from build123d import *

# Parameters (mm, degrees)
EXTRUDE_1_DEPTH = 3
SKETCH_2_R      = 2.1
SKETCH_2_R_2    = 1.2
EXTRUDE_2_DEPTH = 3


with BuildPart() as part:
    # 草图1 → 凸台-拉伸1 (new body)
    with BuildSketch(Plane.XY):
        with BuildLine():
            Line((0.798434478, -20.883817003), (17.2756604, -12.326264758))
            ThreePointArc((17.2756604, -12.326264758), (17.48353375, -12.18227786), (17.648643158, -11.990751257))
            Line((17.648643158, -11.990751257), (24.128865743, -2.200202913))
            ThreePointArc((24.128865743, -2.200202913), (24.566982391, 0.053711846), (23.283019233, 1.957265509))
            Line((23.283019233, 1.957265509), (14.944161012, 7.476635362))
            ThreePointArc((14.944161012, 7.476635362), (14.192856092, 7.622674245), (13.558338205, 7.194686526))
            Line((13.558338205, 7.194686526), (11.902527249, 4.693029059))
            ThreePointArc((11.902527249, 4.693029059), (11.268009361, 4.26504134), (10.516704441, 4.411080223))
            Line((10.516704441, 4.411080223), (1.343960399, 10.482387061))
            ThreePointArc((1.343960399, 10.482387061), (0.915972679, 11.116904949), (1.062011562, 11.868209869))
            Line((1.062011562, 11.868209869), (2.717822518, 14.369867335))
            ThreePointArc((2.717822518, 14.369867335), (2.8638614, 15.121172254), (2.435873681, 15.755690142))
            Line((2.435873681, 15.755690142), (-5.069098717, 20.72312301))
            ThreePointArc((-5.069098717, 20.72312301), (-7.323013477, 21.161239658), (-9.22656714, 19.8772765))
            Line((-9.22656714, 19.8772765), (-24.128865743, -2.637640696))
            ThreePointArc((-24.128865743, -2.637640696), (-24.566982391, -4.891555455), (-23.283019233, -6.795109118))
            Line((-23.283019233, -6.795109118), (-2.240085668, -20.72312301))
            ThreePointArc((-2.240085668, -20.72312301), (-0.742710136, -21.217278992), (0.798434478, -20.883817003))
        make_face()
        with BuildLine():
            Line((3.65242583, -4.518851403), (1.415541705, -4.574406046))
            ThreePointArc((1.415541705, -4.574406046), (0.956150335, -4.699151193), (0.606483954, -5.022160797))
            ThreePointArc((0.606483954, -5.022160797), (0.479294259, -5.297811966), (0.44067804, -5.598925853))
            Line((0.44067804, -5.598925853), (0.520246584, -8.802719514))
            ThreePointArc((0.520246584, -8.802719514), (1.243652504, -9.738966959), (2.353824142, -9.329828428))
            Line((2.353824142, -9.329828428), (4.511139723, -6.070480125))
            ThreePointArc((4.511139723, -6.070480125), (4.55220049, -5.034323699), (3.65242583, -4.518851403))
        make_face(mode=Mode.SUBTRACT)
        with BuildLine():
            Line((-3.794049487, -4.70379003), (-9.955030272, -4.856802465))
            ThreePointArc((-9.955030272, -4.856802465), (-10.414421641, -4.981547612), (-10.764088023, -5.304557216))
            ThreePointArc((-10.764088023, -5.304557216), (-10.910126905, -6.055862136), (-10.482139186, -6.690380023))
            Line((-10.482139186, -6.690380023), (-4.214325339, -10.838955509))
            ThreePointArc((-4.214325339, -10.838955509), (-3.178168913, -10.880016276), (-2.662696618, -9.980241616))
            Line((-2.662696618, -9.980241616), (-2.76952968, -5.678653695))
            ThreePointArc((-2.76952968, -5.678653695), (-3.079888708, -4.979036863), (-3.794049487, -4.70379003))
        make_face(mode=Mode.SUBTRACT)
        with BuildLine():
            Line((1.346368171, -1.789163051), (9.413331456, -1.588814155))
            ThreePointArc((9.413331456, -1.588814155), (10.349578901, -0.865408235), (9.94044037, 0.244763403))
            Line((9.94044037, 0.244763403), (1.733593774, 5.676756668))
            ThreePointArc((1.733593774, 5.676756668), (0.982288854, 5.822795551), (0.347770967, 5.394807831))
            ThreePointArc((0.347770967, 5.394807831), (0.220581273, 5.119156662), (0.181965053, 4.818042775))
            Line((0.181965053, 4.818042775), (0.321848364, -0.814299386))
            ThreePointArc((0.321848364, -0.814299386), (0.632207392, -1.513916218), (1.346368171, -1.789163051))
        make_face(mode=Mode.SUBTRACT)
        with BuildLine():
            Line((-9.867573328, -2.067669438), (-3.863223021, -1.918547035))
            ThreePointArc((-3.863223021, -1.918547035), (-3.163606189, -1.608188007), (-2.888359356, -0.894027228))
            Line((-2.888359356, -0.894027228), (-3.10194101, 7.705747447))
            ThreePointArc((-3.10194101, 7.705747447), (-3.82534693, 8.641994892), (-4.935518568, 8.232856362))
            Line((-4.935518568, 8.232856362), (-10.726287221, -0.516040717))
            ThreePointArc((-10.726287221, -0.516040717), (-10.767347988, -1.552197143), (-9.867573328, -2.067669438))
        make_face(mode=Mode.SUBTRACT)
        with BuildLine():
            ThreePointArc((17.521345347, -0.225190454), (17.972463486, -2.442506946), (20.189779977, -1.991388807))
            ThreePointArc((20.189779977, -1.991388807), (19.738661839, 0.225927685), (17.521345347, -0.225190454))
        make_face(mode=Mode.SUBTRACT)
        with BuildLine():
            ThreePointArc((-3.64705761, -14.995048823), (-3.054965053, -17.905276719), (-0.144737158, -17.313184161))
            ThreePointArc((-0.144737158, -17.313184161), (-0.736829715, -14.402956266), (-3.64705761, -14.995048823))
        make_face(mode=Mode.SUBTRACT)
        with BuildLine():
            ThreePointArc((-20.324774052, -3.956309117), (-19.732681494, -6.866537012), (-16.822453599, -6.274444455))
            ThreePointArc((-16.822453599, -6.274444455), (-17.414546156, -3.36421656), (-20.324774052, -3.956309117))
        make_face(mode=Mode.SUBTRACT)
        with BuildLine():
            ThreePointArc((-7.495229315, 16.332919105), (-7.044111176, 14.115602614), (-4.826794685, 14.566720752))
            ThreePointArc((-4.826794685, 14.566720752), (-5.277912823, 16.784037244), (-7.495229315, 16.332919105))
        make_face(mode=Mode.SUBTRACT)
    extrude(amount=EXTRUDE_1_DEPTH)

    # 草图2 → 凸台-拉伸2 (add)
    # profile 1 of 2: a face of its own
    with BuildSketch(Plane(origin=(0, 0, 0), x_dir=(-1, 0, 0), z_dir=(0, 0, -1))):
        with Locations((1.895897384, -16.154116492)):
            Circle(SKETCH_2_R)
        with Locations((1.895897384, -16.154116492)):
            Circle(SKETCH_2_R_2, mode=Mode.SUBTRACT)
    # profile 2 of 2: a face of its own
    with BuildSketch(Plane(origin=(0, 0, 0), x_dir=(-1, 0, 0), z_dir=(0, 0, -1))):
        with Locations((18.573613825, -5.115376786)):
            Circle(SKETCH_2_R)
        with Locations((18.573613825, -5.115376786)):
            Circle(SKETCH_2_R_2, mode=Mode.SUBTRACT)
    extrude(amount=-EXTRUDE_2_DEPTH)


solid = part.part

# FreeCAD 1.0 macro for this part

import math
import FreeCAD as App
import Part
import Sketcher
from FreeCAD import Vector
Q = App.Units.Quantity

doc = App.newDocument("Part")
body = doc.addObject("PartDesign::Body", "Body")

sketch1 = doc.addObject("Sketcher::SketchObject", "Sketch")
body.addObject(sketch1)
sketch1.AttachmentSupport = (doc.XY_Plane, [""])
sketch1.MapMode = "FlatFace"
sketch1.addGeometry(Part.LineSegment(Vector(0.8, -20.9, 0), Vector(17.3, -12.3, 0)), False)
sketch1.addGeometry(Part.ArcOfCircle(Part.Circle(Vector(16.8, -11.4, 0), Vector(0, 0, 1), 1), math.radians(-63), math.radians(-34)), False)
sketch1.addGeometry(Part.LineSegment(Vector(17.6, -12, 0), Vector(24.1, -2.2, 0)), False)
sketch1.addGeometry(Part.ArcOfCircle(Part.Circle(Vector(21.6, -0.5, 0), Vector(0, 0, 1), 3), math.radians(-34), math.radians(57)), False)
sketch1.addGeometry(Part.LineSegment(Vector(23.3, 2, 0), Vector(14.9, 7.5, 0)), False)
sketch1.addGeometry(Part.ArcOfCircle(Part.Circle(Vector(14.4, 6.6, 0), Vector(0, 0, 1), 1), math.radians(56), math.radians(146)), False)
sketch1.addGeometry(Part.LineSegment(Vector(13.6, 7.2, 0), Vector(11.9, 4.7, 0)), False)
sketch1.addGeometry(Part.ArcOfCircle(Part.Circle(Vector(11.1, 5.2, 0), Vector(0, 0, 1), 1), math.radians(-124), math.radians(-34)), False)
sketch1.addGeometry(Part.LineSegment(Vector(10.5, 4.4, 0), Vector(1.3, 10.5, 0)), False)
sketch1.addGeometry(Part.ArcOfCircle(Part.Circle(Vector(1.9, 11.3, 0), Vector(0, 0, 1), 1), math.radians(146), math.radians(237)), False)
sketch1.addGeometry(Part.LineSegment(Vector(1.1, 11.9, 0), Vector(2.7, 14.4, 0)), False)
sketch1.addGeometry(Part.ArcOfCircle(Part.Circle(Vector(1.9, 14.9, 0), Vector(0, 0, 1), 1), math.radians(-33), math.radians(56)), False)
sketch1.addGeometry(Part.LineSegment(Vector(2.4, 15.8, 0), Vector(-5.1, 20.7, 0)), False)
sketch1.addGeometry(Part.ArcOfCircle(Part.Circle(Vector(-6.7, 18.2, 0), Vector(0, 0, 1), 3), math.radians(56), math.radians(146)), False)
sketch1.addGeometry(Part.LineSegment(Vector(-9.2, 19.9, 0), Vector(-24.1, -2.6, 0)), False)
sketch1.addGeometry(Part.ArcOfCircle(Part.Circle(Vector(-21.6, -4.3, 0), Vector(0, 0, 1), 3), math.radians(146), math.radians(237)), False)
sketch1.addGeometry(Part.LineSegment(Vector(-23.3, -6.8, 0), Vector(-2.2, -20.7, 0)), False)
sketch1.addGeometry(Part.ArcOfCircle(Part.Circle(Vector(-0.6, -18.2, 0), Vector(0, 0, 1), 3), math.radians(-124), math.radians(-63)), False)
sketch1.addGeometry(Part.ArcOfCircle(Part.Circle(Vector(-1.9, -16.2, 0), Vector(0, 0, 1), 2.1), math.radians(146), math.radians(327)), False)
sketch1.addGeometry(Part.ArcOfCircle(Part.Circle(Vector(-1.9, -16.2, 0), Vector(0, 0, 1), 2.1), math.radians(-34), math.radians(146)), False)
sketch1.addGeometry(Part.ArcOfCircle(Part.Circle(Vector(-18.6, -5.1, 0), Vector(0, 0, 1), 2.1), math.radians(147), math.radians(326)), False)
sketch1.addGeometry(Part.ArcOfCircle(Part.Circle(Vector(-18.6, -5.1, 0), Vector(0, 0, 1), 2.1), math.radians(-33), math.radians(146)), False)
sketch1.addGeometry(Part.LineSegment(Vector(-10, -4.9, 0), Vector(-3.8, -4.7, 0)), False)
sketch1.addGeometry(Part.ArcOfCircle(Part.Circle(Vector(-3.8, -5.7, 0), Vector(0, 0, 1), 1), math.radians(1), math.radians(91)), False)
sketch1.addGeometry(Part.LineSegment(Vector(-2.8, -5.7, 0), Vector(-2.7, -10, 0)), False)
sketch1.addGeometry(Part.ArcOfCircle(Part.Circle(Vector(-3.7, -10, 0), Vector(0, 0, 1), 1), math.radians(-124), math.radians(1)), False)
sketch1.addGeometry(Part.LineSegment(Vector(-4.2, -10.8, 0), Vector(-10.5, -6.7, 0)), False)
sketch1.addGeometry(Part.ArcOfCircle(Part.Circle(Vector(-9.9, -5.9, 0), Vector(0, 0, 1), 1), math.radians(147), math.radians(236)), False)
sketch1.addGeometry(Part.ArcOfCircle(Part.Circle(Vector(-9.9, -5.9, 0), Vector(0, 0, 1), 1), math.radians(91), math.radians(147)), False)
sketch1.addGeometry(Part.LineSegment(Vector(1.4, -4.6, 0), Vector(3.7, -4.5, 0)), False)
sketch1.addGeometry(Part.ArcOfCircle(Part.Circle(Vector(3.7, -5.5, 0), Vector(0, 0, 1), 1), math.radians(-34), math.radians(91)), False)
sketch1.addGeometry(Part.LineSegment(Vector(4.5, -6.1, 0), Vector(2.4, -9.3, 0)), False)
sketch1.addGeometry(Part.ArcOfCircle(Part.Circle(Vector(1.5, -8.8, 0), Vector(0, 0, 1), 1), math.radians(-179), math.radians(-33)), False)
sketch1.addGeometry(Part.LineSegment(Vector(0.5, -8.8, 0), Vector(0.4, -5.6, 0)), False)
sketch1.addGeometry(Part.ArcOfCircle(Part.Circle(Vector(1.4, -5.6, 0), Vector(0, 0, 1), 1), math.radians(146), math.radians(181)), False)
sketch1.addGeometry(Part.ArcOfCircle(Part.Circle(Vector(1.4, -5.6, 0), Vector(0, 0, 1), 1), math.radians(91), math.radians(147)), False)
sketch1.addGeometry(Part.ArcOfCircle(Part.Circle(Vector(18.9, -1.1, 0), Vector(0, 0, 1), 1.6), math.radians(146), math.radians(327)), False)
sketch1.addGeometry(Part.ArcOfCircle(Part.Circle(Vector(18.9, -1.1, 0), Vector(0, 0, 1), 1.6), math.radians(-34), math.radians(147)), False)
sketch1.addGeometry(Part.LineSegment(Vector(-3.9, -1.9, 0), Vector(-9.9, -2.1, 0)), False)
sketch1.addGeometry(Part.ArcOfCircle(Part.Circle(Vector(-9.9, -1.1, 0), Vector(0, 0, 1), 1), math.radians(146), math.radians(271)), False)
sketch1.addGeometry(Part.LineSegment(Vector(-10.7, -0.5, 0), Vector(-4.9, 8.2, 0)), False)
sketch1.addGeometry(Part.ArcOfCircle(Part.Circle(Vector(-4.1, 7.7, 0), Vector(0, 0, 1), 1), math.radians(1), math.radians(146)), False)
sketch1.addGeometry(Part.LineSegment(Vector(-3.1, 7.7, 0), Vector(-2.9, -0.9, 0)), False)
sketch1.addGeometry(Part.ArcOfCircle(Part.Circle(Vector(-3.9, -0.9, 0), Vector(0, 0, 1), 1), math.radians(-89), math.radians(1)), False)
sketch1.addGeometry(Part.Circle(Vector(-6.2, 15.4, 0), Vector(0, 0, 1), 1.6), False)
sketch1.addGeometry(Part.LineSegment(Vector(9.4, -1.6, 0), Vector(1.3, -1.8, 0)), False)
sketch1.addGeometry(Part.ArcOfCircle(Part.Circle(Vector(1.3, -0.8, 0), Vector(0, 0, 1), 1), math.radians(-179), math.radians(-89)), False)
sketch1.addGeometry(Part.LineSegment(Vector(0.3, -0.8, 0), Vector(0.2, 4.8, 0)), False)
sketch1.addGeometry(Part.ArcOfCircle(Part.Circle(Vector(1.2, 4.8, 0), Vector(0, 0, 1), 1), math.radians(147), math.radians(181)), False)
sketch1.addGeometry(Part.ArcOfCircle(Part.Circle(Vector(1.2, 4.8, 0), Vector(0, 0, 1), 1), math.radians(56), math.radians(147)), False)
sketch1.addGeometry(Part.LineSegment(Vector(1.7, 5.7, 0), Vector(9.9, 0.2, 0)), False)
sketch1.addGeometry(Part.ArcOfCircle(Part.Circle(Vector(9.4, -0.6, 0), Vector(0, 0, 1), 1), math.radians(-89), math.radians(57)), False)
sketch1.addConstraint(Sketcher.Constraint("Tangent", 0, 2, 1, 1))
sketch1.addConstraint(Sketcher.Constraint("Tangent", 1, 2, 2, 1))
sketch1.addConstraint(Sketcher.Constraint("Tangent", 2, 2, 3, 1))
sketch1.addConstraint(Sketcher.Constraint("Tangent", 3, 2, 4, 1))
sketch1.addConstraint(Sketcher.Constraint("Tangent", 4, 2, 5, 1))
sketch1.addConstraint(Sketcher.Constraint("Tangent", 5, 2, 6, 1))
sketch1.addConstraint(Sketcher.Constraint("Tangent", 6, 2, 7, 2))
sketch1.addConstraint(Sketcher.Constraint("Tangent", 7, 1, 8, 1))
sketch1.addConstraint(Sketcher.Constraint("Tangent", 8, 2, 9, 2))
sketch1.addConstraint(Sketcher.Constraint("Tangent", 9, 1, 10, 1))
sketch1.addConstraint(Sketcher.Constraint("Tangent", 10, 2, 11, 1))
sketch1.addConstraint(Sketcher.Constraint("Tangent", 11, 2, 12, 1))
sketch1.addConstraint(Sketcher.Constraint("Tangent", 12, 2, 13, 1))
sketch1.addConstraint(Sketcher.Constraint("Tangent", 13, 2, 14, 1))
sketch1.addConstraint(Sketcher.Constraint("Tangent", 14, 2, 15, 1))
sketch1.addConstraint(Sketcher.Constraint("Tangent", 15, 2, 16, 1))
sketch1.addConstraint(Sketcher.Constraint("Tangent", 16, 2, 17, 1))
sketch1.addConstraint(Sketcher.Constraint("Tangent", 17, 2, 0, 1))
sketch1.addConstraint(Sketcher.Constraint("Tangent", 18, 1, 19, 2))
sketch1.addConstraint(Sketcher.Constraint("Coincident", 19, 1, 18, 2))
sketch1.addConstraint(Sketcher.Constraint("Tangent", 20, 1, 21, 2))
sketch1.addConstraint(Sketcher.Constraint("Coincident", 21, 1, 20, 2))
sketch1.addConstraint(Sketcher.Constraint("Tangent", 22, 2, 23, 2))
sketch1.addConstraint(Sketcher.Constraint("Tangent", 23, 1, 24, 1))
sketch1.addConstraint(Sketcher.Constraint("Tangent", 24, 2, 25, 2))
sketch1.addConstraint(Sketcher.Constraint("Tangent", 25, 1, 26, 1))
sketch1.addConstraint(Sketcher.Constraint("Tangent", 26, 2, 27, 2))
sketch1.addConstraint(Sketcher.Constraint("Tangent", 27, 1, 28, 2))
sketch1.addConstraint(Sketcher.Constraint("Tangent", 28, 1, 22, 1))
sketch1.addConstraint(Sketcher.Constraint("Tangent", 29, 2, 30, 2))
sketch1.addConstraint(Sketcher.Constraint("Tangent", 30, 1, 31, 1))
sketch1.addConstraint(Sketcher.Constraint("Tangent", 31, 2, 32, 2))
sketch1.addConstraint(Sketcher.Constraint("Tangent", 32, 1, 33, 1))
sketch1.addConstraint(Sketcher.Constraint("Tangent", 33, 2, 34, 2))
sketch1.addConstraint(Sketcher.Constraint("Tangent", 34, 1, 35, 2))
sketch1.addConstraint(Sketcher.Constraint("Tangent", 35, 1, 29, 1))
sketch1.addConstraint(Sketcher.Constraint("Tangent", 36, 1, 37, 2))
sketch1.addConstraint(Sketcher.Constraint("Coincident", 37, 1, 36, 2))
sketch1.addConstraint(Sketcher.Constraint("Tangent", 38, 2, 39, 2))
sketch1.addConstraint(Sketcher.Constraint("Tangent", 39, 1, 40, 1))
sketch1.addConstraint(Sketcher.Constraint("Tangent", 40, 2, 41, 2))
sketch1.addConstraint(Sketcher.Constraint("Tangent", 41, 1, 42, 1))
sketch1.addConstraint(Sketcher.Constraint("Tangent", 42, 2, 43, 2))
sketch1.addConstraint(Sketcher.Constraint("Tangent", 43, 1, 38, 1))
sketch1.addConstraint(Sketcher.Constraint("Tangent", 45, 2, 46, 2))
sketch1.addConstraint(Sketcher.Constraint("Tangent", 46, 1, 47, 1))
sketch1.addConstraint(Sketcher.Constraint("Tangent", 47, 2, 48, 2))
sketch1.addConstraint(Sketcher.Constraint("Tangent", 48, 1, 49, 2))
sketch1.addConstraint(Sketcher.Constraint("Tangent", 49, 1, 50, 1))
sketch1.addConstraint(Sketcher.Constraint("Tangent", 50, 2, 51, 2))
sketch1.addConstraint(Sketcher.Constraint("Tangent", 51, 1, 45, 1))
sketch1.addConstraint(Sketcher.Constraint("Equal", 1, 5))
sketch1.addConstraint(Sketcher.Constraint("Equal", 5, 7))
sketch1.addConstraint(Sketcher.Constraint("Equal", 7, 9))
sketch1.addConstraint(Sketcher.Constraint("Equal", 9, 11))
sketch1.addConstraint(Sketcher.Constraint("Equal", 3, 13))
sketch1.addConstraint(Sketcher.Constraint("Equal", 13, 15))
sketch1.addConstraint(Sketcher.Constraint("Equal", 15, 17))
sketch1.addConstraint(Sketcher.Constraint("Equal", 19, 20))
sketch1.addConstraint(Sketcher.Constraint("Equal", 11, 23))
sketch1.addConstraint(Sketcher.Constraint("Equal", 23, 25))
sketch1.addConstraint(Sketcher.Constraint("Equal", 25, 27))
sketch1.addConstraint(Sketcher.Constraint("Equal", 27, 28))
sketch1.addConstraint(Sketcher.Constraint("Equal", 28, 30))
sketch1.addConstraint(Sketcher.Constraint("Equal", 30, 32))
sketch1.addConstraint(Sketcher.Constraint("Equal", 32, 34))
sketch1.addConstraint(Sketcher.Constraint("Equal", 34, 35))
sketch1.addConstraint(Sketcher.Constraint("Equal", 35, 39))
sketch1.addConstraint(Sketcher.Constraint("Equal", 39, 41))
sketch1.addConstraint(Sketcher.Constraint("Equal", 41, 43))
sketch1.addConstraint(Sketcher.Constraint("Equal", 37, 44))
sketch1.addConstraint(Sketcher.Constraint("Equal", 43, 46))
sketch1.addConstraint(Sketcher.Constraint("Equal", 46, 48))
sketch1.addConstraint(Sketcher.Constraint("Equal", 48, 49))
sketch1.addConstraint(Sketcher.Constraint("Equal", 49, 51))
sketch1.addConstraint(Sketcher.Constraint("Perpendicular", 2, 4))
sketch1.addConstraint(Sketcher.Constraint("Perpendicular", 4, 6))
sketch1.addConstraint(Sketcher.Constraint("Perpendicular", 6, 8))
sketch1.addConstraint(Sketcher.Constraint("Perpendicular", 8, 10))
sketch1.addConstraint(Sketcher.Constraint("Perpendicular", 10, 12))
sketch1.addConstraint(Sketcher.Constraint("Perpendicular", 12, 14))
sketch1.addConstraint(Sketcher.Constraint("Perpendicular", 14, 16))
sketch1.addConstraint(Sketcher.Constraint("Perpendicular", 22, 24))
sketch1.addConstraint(Sketcher.Constraint("Parallel", 16, 26))
sketch1.addConstraint(Sketcher.Constraint("Perpendicular", 24, 29))
sketch1.addConstraint(Sketcher.Constraint("Perpendicular", 26, 31))
sketch1.addConstraint(Sketcher.Constraint("Perpendicular", 29, 33))
sketch1.addConstraint(Sketcher.Constraint("Perpendicular", 33, 38))
sketch1.addConstraint(Sketcher.Constraint("Parallel", 31, 40))
sketch1.addConstraint(Sketcher.Constraint("Perpendicular", 38, 42))
sketch1.addConstraint(Sketcher.Constraint("Perpendicular", 42, 45))
sketch1.addConstraint(Sketcher.Constraint("Perpendicular", 45, 47))
sketch1.addConstraint(Sketcher.Constraint("Perpendicular", 40, 50))
sketch1.addConstraint(Sketcher.Constraint("Equal", 6, 10))
sketch1.addConstraint(Sketcher.Constraint("Radius", 1, Q("1 mm")))
sketch1.addConstraint(Sketcher.Constraint("Radius", 3, Q("3 mm")))
sketch1.addConstraint(Sketcher.Constraint("Diameter", 44, Q("3.2 mm")))
sketch1.addConstraint(Sketcher.Constraint("Radius", 18, Q("2.1 mm")))
sketch1.addConstraint(Sketcher.Constraint("Distance", 4, Q("10 mm")))
sketch1.addConstraint(Sketcher.Constraint("Distance", 6, Q("3 mm")))
sketch1.addConstraint(Sketcher.Constraint("Distance", 8, Q("11 mm")))
sketch1.addConstraint(Sketcher.Constraint("Distance", 12, Q("9 mm")))
sketch1.addConstraint(Sketcher.Constraint("Distance", 14, Q("27 mm")))
sketch1.addConstraint(Sketcher.Constraint("Angle", 2, Q("56.5 deg")))
sketch1.addConstraint(Sketcher.Constraint("Distance", 38, Q("6.006202 mm")))
sketch1.addConstraint(Sketcher.Constraint("DistanceX", 39, 3, -1, 1, Q("9.892401 mm")))
sketch1.addConstraint(Sketcher.Constraint("DistanceX", 12, 2, -1, 1, Q("5.069099 mm")))
sketch1.addConstraint(Sketcher.Constraint("DistanceY", 46, 1, -1, 1, Q("0.814299 mm")))
sketch1.addConstraint(Sketcher.Constraint("Distance", 16, Q("25.23479 mm")))
sketch1.addConstraint(Sketcher.Constraint("Distance", 22, Q("6.162881 mm")))
sketch1.addConstraint(Sketcher.Constraint("Distance", 33, Q("3.204782 mm")))
sketch1.addConstraint(Sketcher.Constraint("Distance", 40, Q("10.491721 mm")))
sketch1.addConstraint(Sketcher.Constraint("Distance", 45, Q("8.069451 mm")))
sketch1.addConstraint(Sketcher.Constraint("DistanceY", 3, 3, -1, 1, Q("0.544392 mm")))
sketch1.addConstraint(Sketcher.Constraint("DistanceX", 23, 3, -1, 1, Q("3.769221 mm")))
sketch1.addConstraint(Sketcher.Constraint("DistanceY", 23, 3, -1, 1, Q("5.703482 mm")))
sketch1.addConstraint(Sketcher.Constraint("DistanceX", -1, 1, 32, 3, Q("1.519938 mm")))
sketch1.addConstraint(Sketcher.Constraint("DistanceY", 32, 3, -1, 1, Q("8.777891 mm")))
sketch1.addConstraint(Sketcher.Constraint("DistanceY", 36, 3, -1, 1, Q("1.10829 mm")))
sketch1.addConstraint(Sketcher.Constraint("DistanceY", -1, 1, 41, 3, Q("7.680919 mm")))
sketch1.addConstraint(Sketcher.Constraint("DistanceY", -1, 1, 44, 3, Q("15.44982 mm")))
sketch1.addConstraint(Sketcher.Constraint("DistanceX", -1, 1, 46, 3, Q("1.32154 mm")))
sketch1.addConstraint(Sketcher.Constraint("DistanceX", -1, 1, 0, 2, Q("17.27566 mm")))
sketch1.addConstraint(Sketcher.Constraint("DistanceY", 18, 1, -1, 1, Q("14.995049 mm")))
sketch1.addConstraint(Sketcher.Constraint("DistanceY", 20, 1, -1, 1, Q("3.956309 mm")))
sketch1.addConstraint(Sketcher.Constraint("DistanceX", 27, 1, -1, 1, Q("10.764088 mm")))
sketch1.addConstraint(Sketcher.Constraint("DistanceY", 34, 1, -1, 1, Q("5.022161 mm")))
sketch1.addConstraint(Sketcher.Constraint("DistanceY", 36, 1, -1, 1, Q("0.22519 mm")))
sketch1.addConstraint(Sketcher.Constraint("DistanceX", -1, 1, 37, 1, Q("20.18978 mm")))
sketch1.addConstraint(Sketcher.Constraint("DistanceY", 37, 1, -1, 1, Q("1.991389 mm")))
sketch1.addConstraint(Sketcher.Constraint("DistanceX", -1, 1, 48, 1, Q("0.347771 mm")))
sketch1.addConstraint(Sketcher.Constraint("DistanceX", 18, 3, -1, 1, Q("1.895897 mm")))
sketch1.addConstraint(Sketcher.Constraint("DistanceY", 18, 3, -1, 1, Q("16.154116 mm")))
sketch1.addConstraint(Sketcher.Constraint("DistanceX", 20, 3, -1, 1, Q("18.573614 mm")))
sketch1.addConstraint(Sketcher.Constraint("DistanceY", 20, 3, -1, 1, Q("5.115377 mm")))
sketch1.addConstraint(Sketcher.Constraint("DistanceX", 44, 3, -1, 1, Q("6.161012 mm")))
sketch1.addConstraint(Sketcher.Constraint("DistanceX", 19, 1, -1, 1, Q("0.144737 mm")))
sketch1.addConstraint(Sketcher.Constraint("DistanceX", 21, 1, -1, 1, Q("16.822454 mm")))
pad1 = doc.addObject("PartDesign::Pad", "Pad")
body.addObject(pad1)
pad1.Profile = sketch1
pad1.Length = 3

sketch2 = doc.addObject("Sketcher::SketchObject", "Sketch001")
body.addObject(sketch2)
sketch2.AttachmentSupport = (doc.XY_Plane, [""])
sketch2.MapMode = "FlatFace"
sketch2.addGeometry(Part.Circle(Vector(-1.9, -16.2, 0), Vector(0, 0, 1), 2.1), False)
sketch2.addGeometry(Part.Circle(Vector(-1.9, -16.2, 0), Vector(0, 0, 1), 1.2), False)
sketch2.addGeometry(Part.Circle(Vector(-18.6, -5.1, 0), Vector(0, 0, 1), 2.1), False)
sketch2.addGeometry(Part.Circle(Vector(-18.6, -5.1, 0), Vector(0, 0, 1), 1.2), False)
sketch2.addConstraint(Sketcher.Constraint("Coincident", 1, 3, 0, 3))
sketch2.addConstraint(Sketcher.Constraint("Coincident", 3, 3, 2, 3))
sketch2.addConstraint(Sketcher.Constraint("Equal", 0, 2))
sketch2.addConstraint(Sketcher.Constraint("Equal", 1, 3))
sketch2.addConstraint(Sketcher.Constraint("Diameter", 0, Q("4.2 mm")))
sketch2.addConstraint(Sketcher.Constraint("Diameter", 1, Q("2.4 mm")))
sketch2.addConstraint(Sketcher.Constraint("DistanceY", 0, 3, 2, 3, Q("11.03874 mm")))
sketch2.addConstraint(Sketcher.Constraint("DistanceX", 0, 3, -1, 1, Q("1.895897 mm")))
sketch2.addConstraint(Sketcher.Constraint("DistanceY", 0, 3, -1, 1, Q("16.154116 mm")))
sketch2.addConstraint(Sketcher.Constraint("DistanceX", 2, 3, -1, 1, Q("18.573614 mm")))
pad2 = doc.addObject("PartDesign::Pad", "Pad001")
body.addObject(pad2)
pad2.Profile = sketch2
pad2.Length = 3

doc.recompute()
